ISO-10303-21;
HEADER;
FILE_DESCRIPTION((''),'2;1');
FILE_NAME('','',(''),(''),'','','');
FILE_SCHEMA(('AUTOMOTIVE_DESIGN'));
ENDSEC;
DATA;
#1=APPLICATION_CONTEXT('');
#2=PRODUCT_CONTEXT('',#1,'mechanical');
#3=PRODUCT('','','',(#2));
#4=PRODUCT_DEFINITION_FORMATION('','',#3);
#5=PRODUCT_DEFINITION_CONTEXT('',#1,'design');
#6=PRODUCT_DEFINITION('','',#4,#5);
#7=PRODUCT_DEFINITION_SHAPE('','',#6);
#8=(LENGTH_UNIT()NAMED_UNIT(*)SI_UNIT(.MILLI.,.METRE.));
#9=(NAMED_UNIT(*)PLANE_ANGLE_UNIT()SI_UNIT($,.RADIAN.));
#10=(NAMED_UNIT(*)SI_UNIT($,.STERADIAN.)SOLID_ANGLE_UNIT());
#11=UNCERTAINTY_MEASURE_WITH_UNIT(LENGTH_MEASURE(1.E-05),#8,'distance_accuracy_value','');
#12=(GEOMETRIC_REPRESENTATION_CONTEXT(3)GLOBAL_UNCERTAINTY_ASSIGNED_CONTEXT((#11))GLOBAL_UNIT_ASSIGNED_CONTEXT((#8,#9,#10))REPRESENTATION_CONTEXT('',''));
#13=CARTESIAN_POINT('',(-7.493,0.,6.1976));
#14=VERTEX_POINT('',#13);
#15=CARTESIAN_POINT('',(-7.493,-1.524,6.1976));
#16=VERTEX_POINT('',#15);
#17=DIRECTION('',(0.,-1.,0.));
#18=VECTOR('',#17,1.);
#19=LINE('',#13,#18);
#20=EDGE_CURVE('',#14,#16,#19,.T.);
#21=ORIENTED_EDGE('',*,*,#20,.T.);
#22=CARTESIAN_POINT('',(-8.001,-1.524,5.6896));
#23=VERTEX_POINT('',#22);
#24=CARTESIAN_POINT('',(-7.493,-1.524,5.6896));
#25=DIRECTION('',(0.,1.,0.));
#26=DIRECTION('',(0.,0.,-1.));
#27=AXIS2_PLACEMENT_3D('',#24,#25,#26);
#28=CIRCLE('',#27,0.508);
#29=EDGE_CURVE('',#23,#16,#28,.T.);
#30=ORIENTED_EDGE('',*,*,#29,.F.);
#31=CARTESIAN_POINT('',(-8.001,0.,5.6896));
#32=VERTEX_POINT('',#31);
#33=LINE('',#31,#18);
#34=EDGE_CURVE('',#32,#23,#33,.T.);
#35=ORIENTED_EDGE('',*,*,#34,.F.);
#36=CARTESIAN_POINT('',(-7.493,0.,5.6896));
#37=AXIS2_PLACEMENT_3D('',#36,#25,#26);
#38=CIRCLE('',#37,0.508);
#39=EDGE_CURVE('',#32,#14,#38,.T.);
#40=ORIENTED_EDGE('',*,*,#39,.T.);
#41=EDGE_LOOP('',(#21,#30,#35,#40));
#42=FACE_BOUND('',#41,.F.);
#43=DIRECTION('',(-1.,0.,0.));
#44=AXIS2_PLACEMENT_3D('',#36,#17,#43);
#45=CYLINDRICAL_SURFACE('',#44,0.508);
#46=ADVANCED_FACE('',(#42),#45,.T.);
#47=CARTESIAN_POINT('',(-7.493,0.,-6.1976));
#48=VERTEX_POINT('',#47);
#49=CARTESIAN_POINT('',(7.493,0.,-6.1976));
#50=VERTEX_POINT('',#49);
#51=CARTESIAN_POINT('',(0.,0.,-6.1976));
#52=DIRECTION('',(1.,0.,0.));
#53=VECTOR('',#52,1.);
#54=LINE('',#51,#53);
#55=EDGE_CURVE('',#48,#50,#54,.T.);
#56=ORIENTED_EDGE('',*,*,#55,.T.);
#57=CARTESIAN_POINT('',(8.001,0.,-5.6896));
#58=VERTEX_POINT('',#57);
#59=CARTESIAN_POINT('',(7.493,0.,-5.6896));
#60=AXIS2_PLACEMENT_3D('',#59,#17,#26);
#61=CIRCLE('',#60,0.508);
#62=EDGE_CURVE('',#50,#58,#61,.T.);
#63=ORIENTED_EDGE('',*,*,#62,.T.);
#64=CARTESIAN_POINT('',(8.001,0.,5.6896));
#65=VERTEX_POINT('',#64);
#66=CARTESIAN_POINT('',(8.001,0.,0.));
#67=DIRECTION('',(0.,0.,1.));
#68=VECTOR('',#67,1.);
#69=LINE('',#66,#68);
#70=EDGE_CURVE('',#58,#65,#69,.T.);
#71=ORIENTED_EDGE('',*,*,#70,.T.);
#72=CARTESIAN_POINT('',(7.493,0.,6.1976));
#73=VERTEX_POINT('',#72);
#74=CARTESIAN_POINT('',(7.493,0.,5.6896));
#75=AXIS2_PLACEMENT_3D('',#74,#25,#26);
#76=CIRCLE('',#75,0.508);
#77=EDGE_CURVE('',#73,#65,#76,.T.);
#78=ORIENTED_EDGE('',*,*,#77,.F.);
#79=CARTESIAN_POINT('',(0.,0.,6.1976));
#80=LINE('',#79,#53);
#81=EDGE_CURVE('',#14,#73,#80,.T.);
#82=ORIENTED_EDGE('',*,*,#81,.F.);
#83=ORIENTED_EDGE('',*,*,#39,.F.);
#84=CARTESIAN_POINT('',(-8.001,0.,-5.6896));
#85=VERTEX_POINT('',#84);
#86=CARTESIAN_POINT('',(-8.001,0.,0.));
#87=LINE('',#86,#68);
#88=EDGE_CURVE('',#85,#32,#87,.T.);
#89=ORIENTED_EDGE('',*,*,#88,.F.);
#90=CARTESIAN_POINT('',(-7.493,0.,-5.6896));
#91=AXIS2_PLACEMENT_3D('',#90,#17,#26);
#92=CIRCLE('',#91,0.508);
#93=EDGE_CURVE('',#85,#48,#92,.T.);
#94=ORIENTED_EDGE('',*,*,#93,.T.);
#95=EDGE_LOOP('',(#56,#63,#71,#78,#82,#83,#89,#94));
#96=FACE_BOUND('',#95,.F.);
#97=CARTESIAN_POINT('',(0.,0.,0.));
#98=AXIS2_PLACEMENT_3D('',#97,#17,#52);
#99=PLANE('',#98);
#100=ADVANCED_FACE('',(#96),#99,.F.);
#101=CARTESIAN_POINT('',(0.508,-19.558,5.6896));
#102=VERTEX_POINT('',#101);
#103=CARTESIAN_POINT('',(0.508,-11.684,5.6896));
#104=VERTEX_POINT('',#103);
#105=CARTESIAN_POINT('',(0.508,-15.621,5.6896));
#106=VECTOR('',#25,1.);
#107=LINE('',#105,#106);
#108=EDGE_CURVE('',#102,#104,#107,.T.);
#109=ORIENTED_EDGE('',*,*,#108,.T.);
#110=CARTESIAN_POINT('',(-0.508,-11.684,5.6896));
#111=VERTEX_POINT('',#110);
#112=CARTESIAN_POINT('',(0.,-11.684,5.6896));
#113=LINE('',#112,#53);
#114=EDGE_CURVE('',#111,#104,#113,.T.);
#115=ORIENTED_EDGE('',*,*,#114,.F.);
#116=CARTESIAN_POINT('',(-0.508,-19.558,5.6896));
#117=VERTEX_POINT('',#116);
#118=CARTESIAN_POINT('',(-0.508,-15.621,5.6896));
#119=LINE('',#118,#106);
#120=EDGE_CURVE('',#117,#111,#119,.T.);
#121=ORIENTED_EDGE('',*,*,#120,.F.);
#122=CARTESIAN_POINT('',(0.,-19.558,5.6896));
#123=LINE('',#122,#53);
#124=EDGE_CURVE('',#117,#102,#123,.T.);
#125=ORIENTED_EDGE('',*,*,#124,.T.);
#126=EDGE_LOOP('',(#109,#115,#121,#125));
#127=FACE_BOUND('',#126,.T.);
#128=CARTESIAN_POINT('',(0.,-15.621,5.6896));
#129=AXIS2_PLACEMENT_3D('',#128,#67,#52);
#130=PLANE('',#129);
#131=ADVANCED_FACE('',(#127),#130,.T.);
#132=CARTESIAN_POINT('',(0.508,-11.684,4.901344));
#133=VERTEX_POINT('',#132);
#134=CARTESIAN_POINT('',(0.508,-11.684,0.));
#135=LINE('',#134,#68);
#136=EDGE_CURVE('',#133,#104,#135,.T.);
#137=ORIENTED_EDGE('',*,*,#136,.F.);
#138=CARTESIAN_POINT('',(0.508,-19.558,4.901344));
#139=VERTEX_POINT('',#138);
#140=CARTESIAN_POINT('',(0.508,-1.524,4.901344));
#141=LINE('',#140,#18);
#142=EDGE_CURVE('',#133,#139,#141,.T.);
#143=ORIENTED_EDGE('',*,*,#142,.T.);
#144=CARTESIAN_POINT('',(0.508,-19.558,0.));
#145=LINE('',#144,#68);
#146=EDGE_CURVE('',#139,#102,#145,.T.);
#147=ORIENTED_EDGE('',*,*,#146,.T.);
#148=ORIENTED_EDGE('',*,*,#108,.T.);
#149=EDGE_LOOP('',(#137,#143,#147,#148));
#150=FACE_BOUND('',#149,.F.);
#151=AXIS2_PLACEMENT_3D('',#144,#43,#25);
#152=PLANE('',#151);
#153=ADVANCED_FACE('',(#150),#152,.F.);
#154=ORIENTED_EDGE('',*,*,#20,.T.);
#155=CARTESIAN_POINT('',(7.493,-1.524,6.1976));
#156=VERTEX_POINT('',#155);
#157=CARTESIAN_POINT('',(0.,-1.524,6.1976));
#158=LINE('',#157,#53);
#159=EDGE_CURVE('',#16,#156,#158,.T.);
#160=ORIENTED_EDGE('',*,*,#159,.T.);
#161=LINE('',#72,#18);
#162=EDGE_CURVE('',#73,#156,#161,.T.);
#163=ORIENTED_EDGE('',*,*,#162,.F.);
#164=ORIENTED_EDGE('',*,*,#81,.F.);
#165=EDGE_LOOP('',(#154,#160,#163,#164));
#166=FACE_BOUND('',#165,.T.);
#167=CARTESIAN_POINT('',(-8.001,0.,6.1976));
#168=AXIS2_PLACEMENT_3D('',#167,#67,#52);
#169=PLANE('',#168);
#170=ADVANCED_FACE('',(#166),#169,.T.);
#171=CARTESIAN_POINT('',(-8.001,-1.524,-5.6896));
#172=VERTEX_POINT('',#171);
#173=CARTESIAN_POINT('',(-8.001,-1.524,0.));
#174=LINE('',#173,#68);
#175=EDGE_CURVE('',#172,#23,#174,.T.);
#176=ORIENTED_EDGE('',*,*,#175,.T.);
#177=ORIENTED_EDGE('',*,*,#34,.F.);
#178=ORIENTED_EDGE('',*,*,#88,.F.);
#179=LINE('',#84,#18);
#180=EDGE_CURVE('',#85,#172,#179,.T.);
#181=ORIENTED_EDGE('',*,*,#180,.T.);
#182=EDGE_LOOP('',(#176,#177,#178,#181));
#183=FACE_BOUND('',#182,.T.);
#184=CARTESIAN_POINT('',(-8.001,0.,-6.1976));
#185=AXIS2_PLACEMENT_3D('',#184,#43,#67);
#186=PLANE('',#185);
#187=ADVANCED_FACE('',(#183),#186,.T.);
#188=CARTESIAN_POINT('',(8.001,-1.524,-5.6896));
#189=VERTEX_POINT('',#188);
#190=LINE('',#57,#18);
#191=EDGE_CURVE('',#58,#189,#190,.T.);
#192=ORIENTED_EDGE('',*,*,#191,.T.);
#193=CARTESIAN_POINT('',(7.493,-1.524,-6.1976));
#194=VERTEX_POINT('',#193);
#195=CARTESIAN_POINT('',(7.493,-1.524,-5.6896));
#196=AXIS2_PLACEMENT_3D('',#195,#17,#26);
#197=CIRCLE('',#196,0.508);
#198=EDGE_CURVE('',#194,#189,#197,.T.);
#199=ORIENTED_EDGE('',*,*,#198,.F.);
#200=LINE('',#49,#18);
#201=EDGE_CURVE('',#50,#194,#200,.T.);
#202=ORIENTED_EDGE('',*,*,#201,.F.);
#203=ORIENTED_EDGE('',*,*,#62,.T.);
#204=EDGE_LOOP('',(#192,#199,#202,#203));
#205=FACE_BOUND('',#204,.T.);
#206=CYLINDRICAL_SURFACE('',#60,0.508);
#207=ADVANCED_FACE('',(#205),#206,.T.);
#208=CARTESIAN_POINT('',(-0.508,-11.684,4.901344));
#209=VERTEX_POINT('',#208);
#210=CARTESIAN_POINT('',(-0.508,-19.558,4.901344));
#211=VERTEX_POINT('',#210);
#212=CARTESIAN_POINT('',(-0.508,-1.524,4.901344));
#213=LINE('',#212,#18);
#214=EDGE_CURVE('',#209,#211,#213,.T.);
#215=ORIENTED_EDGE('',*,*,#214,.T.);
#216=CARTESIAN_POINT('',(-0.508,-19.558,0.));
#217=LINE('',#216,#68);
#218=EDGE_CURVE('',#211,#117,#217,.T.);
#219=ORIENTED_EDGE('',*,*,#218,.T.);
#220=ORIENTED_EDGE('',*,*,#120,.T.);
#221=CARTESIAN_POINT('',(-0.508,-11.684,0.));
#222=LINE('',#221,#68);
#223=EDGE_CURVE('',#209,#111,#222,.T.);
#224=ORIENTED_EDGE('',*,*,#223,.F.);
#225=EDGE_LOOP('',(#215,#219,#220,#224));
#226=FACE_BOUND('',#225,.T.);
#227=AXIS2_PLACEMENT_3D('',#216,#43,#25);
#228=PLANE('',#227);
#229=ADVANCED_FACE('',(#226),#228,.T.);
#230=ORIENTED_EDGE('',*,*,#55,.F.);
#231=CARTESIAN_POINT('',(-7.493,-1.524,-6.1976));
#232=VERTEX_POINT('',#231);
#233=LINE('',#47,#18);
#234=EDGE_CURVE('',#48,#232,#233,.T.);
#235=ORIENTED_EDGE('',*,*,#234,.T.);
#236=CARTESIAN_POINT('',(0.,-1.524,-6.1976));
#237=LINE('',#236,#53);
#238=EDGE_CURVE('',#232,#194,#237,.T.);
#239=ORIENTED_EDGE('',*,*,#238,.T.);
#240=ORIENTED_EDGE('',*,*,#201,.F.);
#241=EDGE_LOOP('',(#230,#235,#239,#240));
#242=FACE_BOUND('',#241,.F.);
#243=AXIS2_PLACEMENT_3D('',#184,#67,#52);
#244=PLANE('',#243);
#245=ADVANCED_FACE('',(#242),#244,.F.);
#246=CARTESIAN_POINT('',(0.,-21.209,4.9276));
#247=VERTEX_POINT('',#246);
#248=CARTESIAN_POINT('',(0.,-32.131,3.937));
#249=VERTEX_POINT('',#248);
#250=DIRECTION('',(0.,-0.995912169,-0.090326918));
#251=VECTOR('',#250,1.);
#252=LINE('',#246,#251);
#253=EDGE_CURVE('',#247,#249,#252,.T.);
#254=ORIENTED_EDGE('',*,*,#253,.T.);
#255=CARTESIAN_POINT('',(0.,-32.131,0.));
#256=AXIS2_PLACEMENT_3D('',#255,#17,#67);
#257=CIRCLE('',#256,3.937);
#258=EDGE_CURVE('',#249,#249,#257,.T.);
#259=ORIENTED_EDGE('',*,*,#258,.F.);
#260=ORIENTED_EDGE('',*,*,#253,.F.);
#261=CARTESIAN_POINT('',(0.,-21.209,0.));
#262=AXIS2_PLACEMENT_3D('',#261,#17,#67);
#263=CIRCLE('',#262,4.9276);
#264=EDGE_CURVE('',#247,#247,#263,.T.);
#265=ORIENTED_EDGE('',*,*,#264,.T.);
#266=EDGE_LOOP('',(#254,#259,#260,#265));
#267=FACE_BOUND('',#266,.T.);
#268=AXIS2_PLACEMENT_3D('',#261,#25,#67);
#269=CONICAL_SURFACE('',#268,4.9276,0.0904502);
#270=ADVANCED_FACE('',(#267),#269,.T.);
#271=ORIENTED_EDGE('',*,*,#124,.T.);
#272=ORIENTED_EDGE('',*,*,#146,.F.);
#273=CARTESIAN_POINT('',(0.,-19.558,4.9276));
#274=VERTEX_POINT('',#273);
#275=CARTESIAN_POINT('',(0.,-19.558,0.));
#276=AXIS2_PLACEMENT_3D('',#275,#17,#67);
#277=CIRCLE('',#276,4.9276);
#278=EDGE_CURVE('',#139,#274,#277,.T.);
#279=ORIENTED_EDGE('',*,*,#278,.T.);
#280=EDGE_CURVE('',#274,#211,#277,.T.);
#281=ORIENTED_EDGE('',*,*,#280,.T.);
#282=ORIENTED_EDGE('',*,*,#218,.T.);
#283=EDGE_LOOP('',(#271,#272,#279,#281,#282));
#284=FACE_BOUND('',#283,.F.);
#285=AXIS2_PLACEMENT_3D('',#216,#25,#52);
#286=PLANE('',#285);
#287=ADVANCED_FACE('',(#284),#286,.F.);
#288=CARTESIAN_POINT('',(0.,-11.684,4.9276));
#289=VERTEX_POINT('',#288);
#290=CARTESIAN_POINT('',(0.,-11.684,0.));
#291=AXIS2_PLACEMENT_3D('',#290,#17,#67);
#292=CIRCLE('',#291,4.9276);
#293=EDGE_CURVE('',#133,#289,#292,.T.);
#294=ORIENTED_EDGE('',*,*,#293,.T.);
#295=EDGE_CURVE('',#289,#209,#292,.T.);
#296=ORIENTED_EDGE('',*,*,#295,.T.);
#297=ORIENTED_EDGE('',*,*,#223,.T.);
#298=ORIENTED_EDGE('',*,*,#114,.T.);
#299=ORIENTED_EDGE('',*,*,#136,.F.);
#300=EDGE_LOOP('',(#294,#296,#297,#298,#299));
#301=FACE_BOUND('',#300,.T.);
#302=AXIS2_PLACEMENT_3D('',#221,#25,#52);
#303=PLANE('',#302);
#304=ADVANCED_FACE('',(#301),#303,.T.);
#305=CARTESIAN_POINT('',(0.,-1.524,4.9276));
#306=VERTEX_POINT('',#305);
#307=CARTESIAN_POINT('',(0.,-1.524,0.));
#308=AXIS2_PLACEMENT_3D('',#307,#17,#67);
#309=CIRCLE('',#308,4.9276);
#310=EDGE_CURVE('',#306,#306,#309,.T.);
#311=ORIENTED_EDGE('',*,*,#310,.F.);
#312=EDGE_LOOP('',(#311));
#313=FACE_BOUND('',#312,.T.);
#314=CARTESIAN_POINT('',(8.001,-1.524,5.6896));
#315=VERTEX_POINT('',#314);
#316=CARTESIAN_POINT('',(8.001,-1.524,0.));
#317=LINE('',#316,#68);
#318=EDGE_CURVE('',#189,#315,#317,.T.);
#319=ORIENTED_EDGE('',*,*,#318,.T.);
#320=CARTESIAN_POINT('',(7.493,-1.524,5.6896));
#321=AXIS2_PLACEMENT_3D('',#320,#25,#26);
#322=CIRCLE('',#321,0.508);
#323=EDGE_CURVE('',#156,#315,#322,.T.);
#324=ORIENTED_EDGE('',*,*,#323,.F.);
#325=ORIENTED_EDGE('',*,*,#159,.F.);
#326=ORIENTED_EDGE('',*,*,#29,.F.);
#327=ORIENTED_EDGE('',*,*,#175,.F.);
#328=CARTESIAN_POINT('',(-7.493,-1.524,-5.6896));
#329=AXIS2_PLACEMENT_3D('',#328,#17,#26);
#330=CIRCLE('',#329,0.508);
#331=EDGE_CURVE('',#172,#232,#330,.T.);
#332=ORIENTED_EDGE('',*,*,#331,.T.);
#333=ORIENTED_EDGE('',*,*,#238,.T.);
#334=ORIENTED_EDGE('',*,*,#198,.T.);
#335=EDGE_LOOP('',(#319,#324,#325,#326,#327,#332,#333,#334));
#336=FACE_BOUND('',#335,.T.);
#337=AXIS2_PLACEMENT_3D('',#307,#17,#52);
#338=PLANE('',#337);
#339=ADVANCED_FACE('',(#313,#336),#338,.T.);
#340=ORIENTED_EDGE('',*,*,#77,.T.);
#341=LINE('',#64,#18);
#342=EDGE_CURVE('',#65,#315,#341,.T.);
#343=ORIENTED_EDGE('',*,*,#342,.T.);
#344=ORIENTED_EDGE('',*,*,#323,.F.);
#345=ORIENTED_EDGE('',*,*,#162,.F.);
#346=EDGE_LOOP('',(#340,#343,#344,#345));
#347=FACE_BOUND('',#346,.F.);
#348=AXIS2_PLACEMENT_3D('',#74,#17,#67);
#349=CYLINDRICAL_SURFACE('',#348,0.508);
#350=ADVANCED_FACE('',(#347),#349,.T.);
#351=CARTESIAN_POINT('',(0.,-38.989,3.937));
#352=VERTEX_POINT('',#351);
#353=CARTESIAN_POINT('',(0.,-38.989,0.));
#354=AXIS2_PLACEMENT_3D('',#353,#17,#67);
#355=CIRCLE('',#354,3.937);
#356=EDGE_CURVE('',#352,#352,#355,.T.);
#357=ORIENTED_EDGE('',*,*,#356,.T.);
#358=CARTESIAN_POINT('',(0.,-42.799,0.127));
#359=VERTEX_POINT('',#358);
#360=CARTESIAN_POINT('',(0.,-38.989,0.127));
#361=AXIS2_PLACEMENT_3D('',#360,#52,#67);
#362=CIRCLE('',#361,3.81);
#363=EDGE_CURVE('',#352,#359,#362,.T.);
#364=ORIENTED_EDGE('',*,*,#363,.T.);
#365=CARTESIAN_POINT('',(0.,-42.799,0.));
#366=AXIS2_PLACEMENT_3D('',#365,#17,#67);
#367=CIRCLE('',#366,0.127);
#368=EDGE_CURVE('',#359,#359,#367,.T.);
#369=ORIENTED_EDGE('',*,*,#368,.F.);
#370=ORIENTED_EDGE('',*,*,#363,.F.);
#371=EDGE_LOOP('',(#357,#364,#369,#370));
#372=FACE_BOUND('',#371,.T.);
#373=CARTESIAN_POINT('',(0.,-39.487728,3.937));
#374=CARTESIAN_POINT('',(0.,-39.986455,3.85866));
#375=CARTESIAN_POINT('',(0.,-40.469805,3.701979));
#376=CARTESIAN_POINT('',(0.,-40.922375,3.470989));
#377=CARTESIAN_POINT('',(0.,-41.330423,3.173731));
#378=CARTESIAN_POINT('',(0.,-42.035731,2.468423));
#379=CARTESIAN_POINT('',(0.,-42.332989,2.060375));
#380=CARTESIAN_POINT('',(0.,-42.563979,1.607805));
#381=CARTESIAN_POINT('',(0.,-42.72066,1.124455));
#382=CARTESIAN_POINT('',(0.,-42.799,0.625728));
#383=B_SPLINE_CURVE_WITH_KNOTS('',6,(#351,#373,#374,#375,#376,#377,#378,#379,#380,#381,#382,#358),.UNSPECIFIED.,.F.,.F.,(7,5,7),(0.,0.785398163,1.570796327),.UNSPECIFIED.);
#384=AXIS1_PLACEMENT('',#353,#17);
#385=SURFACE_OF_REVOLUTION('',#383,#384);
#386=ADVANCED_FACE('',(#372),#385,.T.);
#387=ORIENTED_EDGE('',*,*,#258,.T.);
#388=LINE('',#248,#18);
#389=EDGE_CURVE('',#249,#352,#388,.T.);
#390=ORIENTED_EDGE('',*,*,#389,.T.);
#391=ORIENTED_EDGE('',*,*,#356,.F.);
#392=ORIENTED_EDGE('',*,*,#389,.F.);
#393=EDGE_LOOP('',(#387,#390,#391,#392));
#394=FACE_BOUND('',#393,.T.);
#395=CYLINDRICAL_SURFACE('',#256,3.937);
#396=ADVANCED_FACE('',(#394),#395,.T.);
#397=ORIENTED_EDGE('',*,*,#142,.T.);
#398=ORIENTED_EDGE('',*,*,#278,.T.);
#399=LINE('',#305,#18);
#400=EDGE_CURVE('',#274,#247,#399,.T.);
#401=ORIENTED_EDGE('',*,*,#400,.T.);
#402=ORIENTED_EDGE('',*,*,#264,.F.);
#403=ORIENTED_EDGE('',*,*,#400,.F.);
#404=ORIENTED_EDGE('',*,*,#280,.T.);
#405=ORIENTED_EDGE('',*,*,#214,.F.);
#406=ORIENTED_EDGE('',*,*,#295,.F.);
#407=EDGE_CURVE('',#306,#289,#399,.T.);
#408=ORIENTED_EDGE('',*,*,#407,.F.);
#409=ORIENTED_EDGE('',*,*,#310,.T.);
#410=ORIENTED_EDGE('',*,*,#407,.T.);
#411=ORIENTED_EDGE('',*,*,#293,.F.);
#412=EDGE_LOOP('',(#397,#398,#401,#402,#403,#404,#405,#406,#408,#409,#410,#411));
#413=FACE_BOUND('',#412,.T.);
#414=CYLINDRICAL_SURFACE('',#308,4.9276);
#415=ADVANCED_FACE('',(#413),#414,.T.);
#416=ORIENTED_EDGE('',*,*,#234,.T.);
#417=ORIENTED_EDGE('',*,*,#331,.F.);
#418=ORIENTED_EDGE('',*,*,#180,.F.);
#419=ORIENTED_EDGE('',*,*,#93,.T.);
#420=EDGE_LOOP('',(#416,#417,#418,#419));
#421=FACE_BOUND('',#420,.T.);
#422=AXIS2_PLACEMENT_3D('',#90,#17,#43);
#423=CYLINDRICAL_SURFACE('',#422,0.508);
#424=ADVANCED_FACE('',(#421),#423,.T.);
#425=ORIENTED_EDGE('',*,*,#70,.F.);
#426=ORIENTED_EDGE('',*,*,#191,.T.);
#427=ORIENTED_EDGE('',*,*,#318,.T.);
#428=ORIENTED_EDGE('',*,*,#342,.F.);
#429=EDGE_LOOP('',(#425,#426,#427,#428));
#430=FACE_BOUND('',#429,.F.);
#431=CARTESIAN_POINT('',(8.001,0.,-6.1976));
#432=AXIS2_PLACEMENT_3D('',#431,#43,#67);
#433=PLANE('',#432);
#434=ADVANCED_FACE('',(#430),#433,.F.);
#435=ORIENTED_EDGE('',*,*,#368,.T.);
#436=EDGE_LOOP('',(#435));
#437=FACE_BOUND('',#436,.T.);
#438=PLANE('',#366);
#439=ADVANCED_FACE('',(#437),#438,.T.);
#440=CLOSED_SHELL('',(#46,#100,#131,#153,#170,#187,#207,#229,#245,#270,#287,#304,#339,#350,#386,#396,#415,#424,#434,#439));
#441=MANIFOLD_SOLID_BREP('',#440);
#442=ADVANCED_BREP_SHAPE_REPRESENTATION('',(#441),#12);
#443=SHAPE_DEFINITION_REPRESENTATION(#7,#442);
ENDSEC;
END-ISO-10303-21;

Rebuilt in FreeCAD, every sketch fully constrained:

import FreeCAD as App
import Part
import Sketcher

V = App.Vector
Q = App.Units.Quantity


def edges_at(feature, points):
    """Names of the edges that pass closest to the given points."""
    edges = feature.Shape.Edges
    near = lambda p: min(range(len(edges)), key=lambda i: edges[i].distToShape(Part.Vertex(*p))[0])
    return sorted({f"Edge{near(p) + 1}" for p in points})


def add_polygon(sketch, points):
    """Adds a closed chain of lines whose ends are joined by coincident constraints."""
    first, n = sketch.GeometryCount, len(points)
    for a, b in zip(points, points[1:] + points[:1]):
        sketch.addGeometry(Part.LineSegment(App.Vector(*a, 0), App.Vector(*b, 0)), False)
    for i in range(n):
        sketch.addConstraint(Sketcher.Constraint("Coincident", first + i, 2, first + (i + 1) % n, 1))

doc = App.newDocument("Part")
body = doc.addObject("PartDesign::Body", "Body")

sketch1 = doc.addObject("Sketcher::SketchObject", "Sketch")
body.addObject(sketch1)
sketch1.AttachmentSupport = (doc.XZ_Plane, [""])
sketch1.MapMode = "FlatFace"
add_polygon(sketch1, [(-8, 6), (-8, -6), (8, -6), (8, 6)])
sketch1.addConstraint([
    Sketcher.Constraint("Vertical", 0),
    Sketcher.Constraint("Horizontal", 1),
    Sketcher.Constraint("Vertical", 2),
    Sketcher.Constraint("Horizontal", 3),
    Sketcher.Constraint("Symmetric", 0, 2, 2, 2, -1, 1),
    Sketcher.Constraint("DistanceX", 1, 1, 1, 2, Q("0.63 in")),
    Sketcher.Constraint("DistanceY", 0, 2, 0, 1, Q("0.488 in")),
])
pad1 = doc.addObject("PartDesign::Pad", "Pad")
body.addObject(pad1)
pad1.Profile = sketch1
pad1.Length = Q("0.06 in")

sketch2 = doc.addObject("Sketcher::SketchObject", "Sketch001")
body.addObject(sketch2)
sketch2.AttachmentSupport = (doc.YZ_Plane, [""])
sketch2.MapMode = "FlatFace"
add_polygon(sketch2, [(-42.8, 0), (-1.5, 0), (-1.5, 4.9), (-21.2, 4.9), (-32.1, 3.9), (-42.8, 3.9)])
sketch2.addConstraint([
    Sketcher.Constraint("Horizontal", 0),
    Sketcher.Constraint("Vertical", 1),
    Sketcher.Constraint("Horizontal", 2),
    Sketcher.Constraint("Horizontal", 4),
    Sketcher.Constraint("Vertical", 5),
    Sketcher.Constraint("PointOnObject", 0, 2, -1),
    Sketcher.Constraint("DistanceX", 4, 2, 4, 1, Q("0.42 in")),
    Sketcher.Constraint("DistanceX", 0, 1, 0, 2, Q("1.625 in")),
    Sketcher.Constraint("DistanceX", 2, 2, 2, 1, Q("0.775 in")),
    Sketcher.Constraint("DistanceY", 1, 1, 1, 2, Q("0.194 in")),
    Sketcher.Constraint("DistanceY", 5, 2, 5, 1, Q("0.155 in")),
    Sketcher.Constraint("DistanceX", 0, 2, -1, 1, Q("0.06 in")),
])
revolution = doc.addObject("PartDesign::Revolution", "Revolution")
body.addObject(revolution)
revolution.Profile = sketch2
revolution.ReferenceAxis = (sketch2, ["H_Axis"])
revolution.Angle = 360
doc.recompute()

fillet = doc.addObject("PartDesign::Fillet", "Fillet")
body.addObject(fillet)
fillet.Base = (revolution, edges_at(revolution, [(0, -42.799, -3.937)]))
fillet.Radius = Q("0.15 in")
doc.recompute()

fillet2 = doc.addObject("PartDesign::Fillet", "Fillet001")
body.addObject(fillet2)
fillet2.Base = (fillet, edges_at(fillet, [
    (8.001, -0.762, 6.198),
    (-8.001, -0.762, 6.198),
    (-8.001, -0.762, -6.198),
    (8.001, -0.762, -6.198),
]))
fillet2.Radius = Q("0.02 in")

sketch3 = doc.addObject("Sketcher::SketchObject", "Sketch002")
body.addObject(sketch3)
sketch3.AttachmentSupport = (doc.XY_Plane, [""])
sketch3.MapMode = "FlatFace"
add_polygon(sketch3, [(-0.5, -11.7), (-0.5, -19.6), (0.5, -19.6), (0.5, -11.7)])
sketch3.addConstraint([
    Sketcher.Constraint("Vertical", 0),
    Sketcher.Constraint("Horizontal", 1),
    Sketcher.Constraint("Vertical", 2),
    Sketcher.Constraint("Horizontal", 3),
    Sketcher.Constraint("DistanceX", 1, 1, 1, 2, Q("0.04 in")),
    Sketcher.Constraint("DistanceY", 0, 2, 0, 1, Q("0.31 in")),
    Sketcher.Constraint("DistanceX", 0, 2, -1, 1, Q("0.02 in")),
    Sketcher.Constraint("DistanceY", 0, 2, -1, 1, Q("0.77 in")),
])
pad2 = doc.addObject("PartDesign::Pad", "Pad001")
body.addObject(pad2)
pad2.Profile = sketch3
pad2.Length = Q("0.224 in")

doc.recompute()
